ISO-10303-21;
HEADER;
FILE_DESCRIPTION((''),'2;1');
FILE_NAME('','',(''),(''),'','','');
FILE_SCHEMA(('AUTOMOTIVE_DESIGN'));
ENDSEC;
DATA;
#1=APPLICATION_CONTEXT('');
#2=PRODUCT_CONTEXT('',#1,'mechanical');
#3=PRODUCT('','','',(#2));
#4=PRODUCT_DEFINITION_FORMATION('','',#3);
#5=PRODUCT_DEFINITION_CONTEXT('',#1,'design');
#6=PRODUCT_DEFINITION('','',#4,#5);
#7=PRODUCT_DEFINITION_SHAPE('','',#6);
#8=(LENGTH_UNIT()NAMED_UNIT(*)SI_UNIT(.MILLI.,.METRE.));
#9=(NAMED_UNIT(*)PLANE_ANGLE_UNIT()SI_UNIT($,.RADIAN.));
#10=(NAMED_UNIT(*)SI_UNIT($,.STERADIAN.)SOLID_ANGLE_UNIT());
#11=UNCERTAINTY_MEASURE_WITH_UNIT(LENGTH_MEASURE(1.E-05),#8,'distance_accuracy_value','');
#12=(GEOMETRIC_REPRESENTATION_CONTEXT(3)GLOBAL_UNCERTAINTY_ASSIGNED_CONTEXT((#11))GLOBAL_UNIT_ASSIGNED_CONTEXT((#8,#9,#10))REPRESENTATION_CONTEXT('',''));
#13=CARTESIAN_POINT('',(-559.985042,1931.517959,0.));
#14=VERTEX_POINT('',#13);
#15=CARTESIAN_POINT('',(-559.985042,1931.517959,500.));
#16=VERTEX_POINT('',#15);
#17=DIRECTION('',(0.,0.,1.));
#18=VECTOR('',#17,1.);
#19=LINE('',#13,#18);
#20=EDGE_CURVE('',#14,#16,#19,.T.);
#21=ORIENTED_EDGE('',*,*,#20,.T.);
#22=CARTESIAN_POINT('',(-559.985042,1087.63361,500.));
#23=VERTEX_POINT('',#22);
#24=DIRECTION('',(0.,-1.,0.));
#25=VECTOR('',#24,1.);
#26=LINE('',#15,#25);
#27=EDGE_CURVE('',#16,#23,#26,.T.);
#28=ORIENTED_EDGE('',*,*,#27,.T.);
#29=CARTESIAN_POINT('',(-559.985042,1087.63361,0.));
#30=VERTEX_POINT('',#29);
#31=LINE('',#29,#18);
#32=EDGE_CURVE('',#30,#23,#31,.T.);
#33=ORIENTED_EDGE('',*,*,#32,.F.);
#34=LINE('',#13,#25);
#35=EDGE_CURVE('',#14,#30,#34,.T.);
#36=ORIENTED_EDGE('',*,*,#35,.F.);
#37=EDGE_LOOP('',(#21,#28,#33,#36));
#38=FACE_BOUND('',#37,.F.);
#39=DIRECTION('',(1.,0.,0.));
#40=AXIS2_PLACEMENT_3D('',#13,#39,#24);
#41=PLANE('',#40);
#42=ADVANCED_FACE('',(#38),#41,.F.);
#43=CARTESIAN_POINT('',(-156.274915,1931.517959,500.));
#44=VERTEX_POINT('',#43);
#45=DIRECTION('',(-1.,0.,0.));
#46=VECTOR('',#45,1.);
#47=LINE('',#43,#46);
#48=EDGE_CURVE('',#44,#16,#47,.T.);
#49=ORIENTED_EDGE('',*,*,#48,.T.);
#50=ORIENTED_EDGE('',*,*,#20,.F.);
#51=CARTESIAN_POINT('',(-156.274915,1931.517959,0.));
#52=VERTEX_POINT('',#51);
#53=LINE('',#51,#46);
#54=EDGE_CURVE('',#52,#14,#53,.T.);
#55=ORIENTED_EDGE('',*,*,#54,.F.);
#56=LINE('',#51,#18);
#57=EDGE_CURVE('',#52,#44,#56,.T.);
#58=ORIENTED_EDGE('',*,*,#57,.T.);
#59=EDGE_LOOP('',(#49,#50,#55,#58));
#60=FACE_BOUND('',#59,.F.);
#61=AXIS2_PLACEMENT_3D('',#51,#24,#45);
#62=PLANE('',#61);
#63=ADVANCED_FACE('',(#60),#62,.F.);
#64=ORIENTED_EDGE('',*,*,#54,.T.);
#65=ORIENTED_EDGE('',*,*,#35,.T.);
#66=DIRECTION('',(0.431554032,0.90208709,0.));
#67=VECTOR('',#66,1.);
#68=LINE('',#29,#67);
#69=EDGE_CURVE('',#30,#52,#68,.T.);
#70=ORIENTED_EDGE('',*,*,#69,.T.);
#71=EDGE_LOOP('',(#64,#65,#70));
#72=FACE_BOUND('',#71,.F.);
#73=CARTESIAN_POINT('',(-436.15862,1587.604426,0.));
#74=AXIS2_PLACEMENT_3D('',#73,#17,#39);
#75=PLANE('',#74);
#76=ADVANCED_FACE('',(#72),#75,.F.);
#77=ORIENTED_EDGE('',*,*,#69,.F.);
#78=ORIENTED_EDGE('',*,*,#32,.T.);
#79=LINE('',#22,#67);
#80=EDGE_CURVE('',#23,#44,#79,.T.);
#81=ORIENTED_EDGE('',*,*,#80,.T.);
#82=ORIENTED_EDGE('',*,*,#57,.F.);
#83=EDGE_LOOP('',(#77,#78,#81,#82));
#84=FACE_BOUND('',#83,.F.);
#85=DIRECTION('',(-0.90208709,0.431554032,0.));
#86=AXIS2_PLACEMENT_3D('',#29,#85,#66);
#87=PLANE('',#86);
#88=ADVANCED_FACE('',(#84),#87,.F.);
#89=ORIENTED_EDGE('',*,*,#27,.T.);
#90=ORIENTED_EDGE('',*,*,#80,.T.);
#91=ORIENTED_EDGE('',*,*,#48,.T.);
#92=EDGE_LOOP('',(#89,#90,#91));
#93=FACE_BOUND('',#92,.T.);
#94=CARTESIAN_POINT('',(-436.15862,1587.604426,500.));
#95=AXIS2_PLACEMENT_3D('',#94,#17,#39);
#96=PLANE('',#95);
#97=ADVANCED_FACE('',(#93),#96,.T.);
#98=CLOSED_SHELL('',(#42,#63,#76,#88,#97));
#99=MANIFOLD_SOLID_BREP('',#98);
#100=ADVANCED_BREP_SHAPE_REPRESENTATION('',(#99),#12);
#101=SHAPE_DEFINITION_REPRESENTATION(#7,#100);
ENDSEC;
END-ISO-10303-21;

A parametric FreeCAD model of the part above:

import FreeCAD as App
import Part
import Sketcher
Q = App.Units.Quantity

doc = App.newDocument("Part")
body = doc.addObject("PartDesign::Body", "Body")

# Sketch on XY plane
sketch1 = body.newObject("Sketcher::SketchObject", "Sketch")
sketch1.AttachmentSupport = (doc.getObject("XY_Plane"), [""])
sketch1.MapMode = "FlatFace"
sketch1.addGeometry(Part.LineSegment(App.Vector(-560, 1932, 0), App.Vector(-560, 1088, 0)), False)
sketch1.addGeometry(Part.LineSegment(App.Vector(-560, 1088, 0), App.Vector(-156, 1932, 0)), False)
sketch1.addGeometry(Part.LineSegment(App.Vector(-156, 1932, 0), App.Vector(-560, 1932, 0)), False)
sketch1.addConstraint(Sketcher.Constraint("Coincident", 0, 2, 1, 1))
sketch1.addConstraint(Sketcher.Constraint("Coincident", 1, 2, 2, 1))
sketch1.addConstraint(Sketcher.Constraint("Coincident", 2, 2, 0, 1))
sketch1.addConstraint(Sketcher.Constraint("Vertical", 0))
sketch1.addConstraint(Sketcher.Constraint("Horizontal", 2))
sketch1.addConstraint(Sketcher.Constraint("DistanceY", 0, 2, 0, 1, Q("843.884349 mm")))
sketch1.addConstraint(Sketcher.Constraint("Distance", 1, Q("935.47991 mm")))
sketch1.addConstraint(Sketcher.Constraint("DistanceX", 0, 2, -1, 1, Q("559.985042 mm")))
sketch1.addConstraint(Sketcher.Constraint("DistanceY", -1, 1, 0, 2, Q("1087.63361 mm")))
pad1 = body.newObject("PartDesign::Pad", "Pad")
pad1.Profile = sketch1
pad1.Length = 500

doc.recompute()
